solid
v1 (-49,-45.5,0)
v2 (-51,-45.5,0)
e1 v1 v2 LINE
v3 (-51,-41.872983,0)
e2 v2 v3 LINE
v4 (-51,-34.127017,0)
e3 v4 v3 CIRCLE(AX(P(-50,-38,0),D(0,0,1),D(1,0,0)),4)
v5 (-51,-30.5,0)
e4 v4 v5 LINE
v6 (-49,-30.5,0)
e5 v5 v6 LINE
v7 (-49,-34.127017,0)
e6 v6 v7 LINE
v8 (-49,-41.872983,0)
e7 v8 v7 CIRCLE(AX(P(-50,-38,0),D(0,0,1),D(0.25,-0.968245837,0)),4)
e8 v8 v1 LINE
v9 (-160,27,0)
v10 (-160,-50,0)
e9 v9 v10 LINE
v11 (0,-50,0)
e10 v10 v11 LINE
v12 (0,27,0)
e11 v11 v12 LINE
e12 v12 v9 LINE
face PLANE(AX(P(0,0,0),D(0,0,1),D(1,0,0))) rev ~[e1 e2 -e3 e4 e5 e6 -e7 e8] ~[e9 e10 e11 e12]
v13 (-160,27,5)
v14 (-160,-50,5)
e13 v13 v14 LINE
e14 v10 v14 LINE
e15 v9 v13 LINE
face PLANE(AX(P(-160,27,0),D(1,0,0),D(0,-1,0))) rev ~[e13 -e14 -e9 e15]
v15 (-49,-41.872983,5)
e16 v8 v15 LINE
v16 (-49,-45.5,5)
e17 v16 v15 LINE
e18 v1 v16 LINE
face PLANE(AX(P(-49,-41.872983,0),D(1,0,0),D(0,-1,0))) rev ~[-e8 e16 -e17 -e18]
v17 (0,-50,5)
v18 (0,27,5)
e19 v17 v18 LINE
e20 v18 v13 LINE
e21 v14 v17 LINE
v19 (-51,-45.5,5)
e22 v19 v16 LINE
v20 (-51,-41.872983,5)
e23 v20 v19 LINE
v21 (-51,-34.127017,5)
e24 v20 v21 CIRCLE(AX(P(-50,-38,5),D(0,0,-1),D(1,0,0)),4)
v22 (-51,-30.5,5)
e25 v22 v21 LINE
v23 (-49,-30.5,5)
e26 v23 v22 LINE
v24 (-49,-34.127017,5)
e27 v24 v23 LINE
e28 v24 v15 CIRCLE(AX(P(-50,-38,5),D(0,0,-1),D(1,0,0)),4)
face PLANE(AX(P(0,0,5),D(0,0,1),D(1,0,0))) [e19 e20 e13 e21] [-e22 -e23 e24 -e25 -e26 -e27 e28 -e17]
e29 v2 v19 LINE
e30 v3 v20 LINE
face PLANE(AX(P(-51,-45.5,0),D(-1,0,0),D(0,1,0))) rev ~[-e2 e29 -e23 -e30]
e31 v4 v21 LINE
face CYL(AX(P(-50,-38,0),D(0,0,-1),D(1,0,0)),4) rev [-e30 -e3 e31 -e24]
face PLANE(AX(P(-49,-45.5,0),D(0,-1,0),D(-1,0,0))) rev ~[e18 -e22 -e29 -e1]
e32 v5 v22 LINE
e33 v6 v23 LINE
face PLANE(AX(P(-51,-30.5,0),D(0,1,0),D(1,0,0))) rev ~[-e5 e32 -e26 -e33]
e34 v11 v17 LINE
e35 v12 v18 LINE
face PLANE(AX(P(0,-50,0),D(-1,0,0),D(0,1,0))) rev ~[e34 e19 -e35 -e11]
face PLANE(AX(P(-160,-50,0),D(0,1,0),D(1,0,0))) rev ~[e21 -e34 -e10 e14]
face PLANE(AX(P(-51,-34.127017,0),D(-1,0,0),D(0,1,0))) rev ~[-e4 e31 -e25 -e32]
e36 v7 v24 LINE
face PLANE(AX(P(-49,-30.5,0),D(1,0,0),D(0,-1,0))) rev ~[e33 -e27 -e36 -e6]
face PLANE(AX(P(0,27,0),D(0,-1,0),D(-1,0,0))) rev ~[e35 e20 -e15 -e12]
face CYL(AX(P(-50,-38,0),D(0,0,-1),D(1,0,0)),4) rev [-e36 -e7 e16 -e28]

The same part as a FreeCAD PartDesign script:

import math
import FreeCAD as App
import Part
import Sketcher
Q = App.Units.Quantity


def add_polygon(sketch, points):
    """Adds a closed chain of lines whose ends are joined by coincident constraints."""
    first, n = sketch.GeometryCount, len(points)
    for a, b in zip(points, points[1:] + points[:1]):
        sketch.addGeometry(Part.LineSegment(App.Vector(*a, 0), App.Vector(*b, 0)), False)
    for i in range(n):
        sketch.addConstraint(Sketcher.Constraint("Coincident", first + i, 2, first + (i + 1) % n, 1))

doc = App.newDocument("Part")
body = doc.addObject("PartDesign::Body", "Body")

sketch1 = doc.addObject("Sketcher::SketchObject", "Sketch")
body.addObject(sketch1)
sketch1.AttachmentSupport = (doc.XY_Plane, [""])
sketch1.MapMode = "FlatFace"
add_polygon(sketch1, [(0, -50), (0, 27), (-160, 27), (-160, -50)])
sketch1.addConstraint([
    Sketcher.Constraint("Vertical", 0),
    Sketcher.Constraint("Horizontal", 1),
    Sketcher.Constraint("Vertical", 2),
    Sketcher.Constraint("Horizontal", 3),
    Sketcher.Constraint("PointOnObject", 0, 2, -2),
    Sketcher.Constraint("DistanceX", 1, 2, 1, 1, Q("160 mm")),
    Sketcher.Constraint("DistanceY", 0, 1, 0, 2, Q("77 mm")),
    Sketcher.Constraint("DistanceY", -1, 1, 0, 2, Q("27 mm")),
])
pad1 = doc.addObject("PartDesign::Pad", "Pad")
body.addObject(pad1)
pad1.Profile = sketch1
pad1.Length = 5

sketch2 = doc.addObject("Sketcher::SketchObject", "Sketch001")
body.addObject(sketch2)
sketch2.AttachmentSupport = (doc.XY_Plane, [""])
sketch2.MapMode = "FlatFace"
sketch2.addGeometry([
    Part.ArcOfCircle(Part.Circle(App.Vector(-50, -38, 0), App.Vector(0, 0, 1), 4), math.radians(-76), math.radians(76)),
    Part.LineSegment(App.Vector(-49, -34.1, 0), App.Vector(-49, -30.5, 0)),
    Part.LineSegment(App.Vector(-49, -30.5, 0), App.Vector(-51, -30.5, 0)),
    Part.LineSegment(App.Vector(-51, -30.5, 0), App.Vector(-51, -34.1, 0)),
    Part.ArcOfCircle(Part.Circle(App.Vector(-50, -38, 0), App.Vector(0, 0, 1), 4), math.radians(104), math.radians(256)),
    Part.LineSegment(App.Vector(-51, -41.9, 0), App.Vector(-51, -45.5, 0)),
    Part.LineSegment(App.Vector(-51, -45.5, 0), App.Vector(-49, -45.5, 0)),
    Part.LineSegment(App.Vector(-49, -45.5, 0), App.Vector(-49, -41.9, 0)),
], False)
sketch2.addConstraint([
    Sketcher.Constraint("Coincident", 0, 2, 1, 1),
    Sketcher.Constraint("Coincident", 1, 2, 2, 1),
    Sketcher.Constraint("Coincident", 2, 2, 3, 1),
    Sketcher.Constraint("Coincident", 3, 2, 4, 1),
    Sketcher.Constraint("Coincident", 4, 2, 5, 1),
    Sketcher.Constraint("Coincident", 5, 2, 6, 1),
    Sketcher.Constraint("Coincident", 6, 2, 7, 1),
    Sketcher.Constraint("Coincident", 7, 2, 0, 1),
    Sketcher.Constraint("Vertical", 1),
    Sketcher.Constraint("Horizontal", 2),
    Sketcher.Constraint("Vertical", 3),
    Sketcher.Constraint("Vertical", 5),
    Sketcher.Constraint("Horizontal", 6),
    Sketcher.Constraint("Vertical", 7),
    Sketcher.Constraint("Coincident", 4, 3, 0, 3),
    Sketcher.Constraint("Equal", 0, 4),
    Sketcher.Constraint("Horizontal", 0, 2, 3, 2),
    Sketcher.Constraint("Horizontal", 4, 2, 7, 2),
    Sketcher.Constraint("Vertical", 3, 2, 4, 2),
    Sketcher.Constraint("Equal", 3, 5),
    Sketcher.Constraint("Radius", 0, Q("4 mm")),
    Sketcher.Constraint("DistanceX", 2, 2, 2, 1, Q("2 mm")),
    Sketcher.Constraint("DistanceX", 0, 3, -1, 1, Q("50 mm")),
    Sketcher.Constraint("DistanceY", 0, 3, -1, 1, Q("38 mm")),
    Sketcher.Constraint("DistanceY", 1, 2, -1, 1, Q("30.5 mm")),
])
pocket1 = doc.addObject("PartDesign::Pocket", "Pocket")
body.addObject(pocket1)
pocket1.Profile = sketch2
pocket1.Type = "ThroughAll"
pocket1.Reversed = True

doc.recompute()
